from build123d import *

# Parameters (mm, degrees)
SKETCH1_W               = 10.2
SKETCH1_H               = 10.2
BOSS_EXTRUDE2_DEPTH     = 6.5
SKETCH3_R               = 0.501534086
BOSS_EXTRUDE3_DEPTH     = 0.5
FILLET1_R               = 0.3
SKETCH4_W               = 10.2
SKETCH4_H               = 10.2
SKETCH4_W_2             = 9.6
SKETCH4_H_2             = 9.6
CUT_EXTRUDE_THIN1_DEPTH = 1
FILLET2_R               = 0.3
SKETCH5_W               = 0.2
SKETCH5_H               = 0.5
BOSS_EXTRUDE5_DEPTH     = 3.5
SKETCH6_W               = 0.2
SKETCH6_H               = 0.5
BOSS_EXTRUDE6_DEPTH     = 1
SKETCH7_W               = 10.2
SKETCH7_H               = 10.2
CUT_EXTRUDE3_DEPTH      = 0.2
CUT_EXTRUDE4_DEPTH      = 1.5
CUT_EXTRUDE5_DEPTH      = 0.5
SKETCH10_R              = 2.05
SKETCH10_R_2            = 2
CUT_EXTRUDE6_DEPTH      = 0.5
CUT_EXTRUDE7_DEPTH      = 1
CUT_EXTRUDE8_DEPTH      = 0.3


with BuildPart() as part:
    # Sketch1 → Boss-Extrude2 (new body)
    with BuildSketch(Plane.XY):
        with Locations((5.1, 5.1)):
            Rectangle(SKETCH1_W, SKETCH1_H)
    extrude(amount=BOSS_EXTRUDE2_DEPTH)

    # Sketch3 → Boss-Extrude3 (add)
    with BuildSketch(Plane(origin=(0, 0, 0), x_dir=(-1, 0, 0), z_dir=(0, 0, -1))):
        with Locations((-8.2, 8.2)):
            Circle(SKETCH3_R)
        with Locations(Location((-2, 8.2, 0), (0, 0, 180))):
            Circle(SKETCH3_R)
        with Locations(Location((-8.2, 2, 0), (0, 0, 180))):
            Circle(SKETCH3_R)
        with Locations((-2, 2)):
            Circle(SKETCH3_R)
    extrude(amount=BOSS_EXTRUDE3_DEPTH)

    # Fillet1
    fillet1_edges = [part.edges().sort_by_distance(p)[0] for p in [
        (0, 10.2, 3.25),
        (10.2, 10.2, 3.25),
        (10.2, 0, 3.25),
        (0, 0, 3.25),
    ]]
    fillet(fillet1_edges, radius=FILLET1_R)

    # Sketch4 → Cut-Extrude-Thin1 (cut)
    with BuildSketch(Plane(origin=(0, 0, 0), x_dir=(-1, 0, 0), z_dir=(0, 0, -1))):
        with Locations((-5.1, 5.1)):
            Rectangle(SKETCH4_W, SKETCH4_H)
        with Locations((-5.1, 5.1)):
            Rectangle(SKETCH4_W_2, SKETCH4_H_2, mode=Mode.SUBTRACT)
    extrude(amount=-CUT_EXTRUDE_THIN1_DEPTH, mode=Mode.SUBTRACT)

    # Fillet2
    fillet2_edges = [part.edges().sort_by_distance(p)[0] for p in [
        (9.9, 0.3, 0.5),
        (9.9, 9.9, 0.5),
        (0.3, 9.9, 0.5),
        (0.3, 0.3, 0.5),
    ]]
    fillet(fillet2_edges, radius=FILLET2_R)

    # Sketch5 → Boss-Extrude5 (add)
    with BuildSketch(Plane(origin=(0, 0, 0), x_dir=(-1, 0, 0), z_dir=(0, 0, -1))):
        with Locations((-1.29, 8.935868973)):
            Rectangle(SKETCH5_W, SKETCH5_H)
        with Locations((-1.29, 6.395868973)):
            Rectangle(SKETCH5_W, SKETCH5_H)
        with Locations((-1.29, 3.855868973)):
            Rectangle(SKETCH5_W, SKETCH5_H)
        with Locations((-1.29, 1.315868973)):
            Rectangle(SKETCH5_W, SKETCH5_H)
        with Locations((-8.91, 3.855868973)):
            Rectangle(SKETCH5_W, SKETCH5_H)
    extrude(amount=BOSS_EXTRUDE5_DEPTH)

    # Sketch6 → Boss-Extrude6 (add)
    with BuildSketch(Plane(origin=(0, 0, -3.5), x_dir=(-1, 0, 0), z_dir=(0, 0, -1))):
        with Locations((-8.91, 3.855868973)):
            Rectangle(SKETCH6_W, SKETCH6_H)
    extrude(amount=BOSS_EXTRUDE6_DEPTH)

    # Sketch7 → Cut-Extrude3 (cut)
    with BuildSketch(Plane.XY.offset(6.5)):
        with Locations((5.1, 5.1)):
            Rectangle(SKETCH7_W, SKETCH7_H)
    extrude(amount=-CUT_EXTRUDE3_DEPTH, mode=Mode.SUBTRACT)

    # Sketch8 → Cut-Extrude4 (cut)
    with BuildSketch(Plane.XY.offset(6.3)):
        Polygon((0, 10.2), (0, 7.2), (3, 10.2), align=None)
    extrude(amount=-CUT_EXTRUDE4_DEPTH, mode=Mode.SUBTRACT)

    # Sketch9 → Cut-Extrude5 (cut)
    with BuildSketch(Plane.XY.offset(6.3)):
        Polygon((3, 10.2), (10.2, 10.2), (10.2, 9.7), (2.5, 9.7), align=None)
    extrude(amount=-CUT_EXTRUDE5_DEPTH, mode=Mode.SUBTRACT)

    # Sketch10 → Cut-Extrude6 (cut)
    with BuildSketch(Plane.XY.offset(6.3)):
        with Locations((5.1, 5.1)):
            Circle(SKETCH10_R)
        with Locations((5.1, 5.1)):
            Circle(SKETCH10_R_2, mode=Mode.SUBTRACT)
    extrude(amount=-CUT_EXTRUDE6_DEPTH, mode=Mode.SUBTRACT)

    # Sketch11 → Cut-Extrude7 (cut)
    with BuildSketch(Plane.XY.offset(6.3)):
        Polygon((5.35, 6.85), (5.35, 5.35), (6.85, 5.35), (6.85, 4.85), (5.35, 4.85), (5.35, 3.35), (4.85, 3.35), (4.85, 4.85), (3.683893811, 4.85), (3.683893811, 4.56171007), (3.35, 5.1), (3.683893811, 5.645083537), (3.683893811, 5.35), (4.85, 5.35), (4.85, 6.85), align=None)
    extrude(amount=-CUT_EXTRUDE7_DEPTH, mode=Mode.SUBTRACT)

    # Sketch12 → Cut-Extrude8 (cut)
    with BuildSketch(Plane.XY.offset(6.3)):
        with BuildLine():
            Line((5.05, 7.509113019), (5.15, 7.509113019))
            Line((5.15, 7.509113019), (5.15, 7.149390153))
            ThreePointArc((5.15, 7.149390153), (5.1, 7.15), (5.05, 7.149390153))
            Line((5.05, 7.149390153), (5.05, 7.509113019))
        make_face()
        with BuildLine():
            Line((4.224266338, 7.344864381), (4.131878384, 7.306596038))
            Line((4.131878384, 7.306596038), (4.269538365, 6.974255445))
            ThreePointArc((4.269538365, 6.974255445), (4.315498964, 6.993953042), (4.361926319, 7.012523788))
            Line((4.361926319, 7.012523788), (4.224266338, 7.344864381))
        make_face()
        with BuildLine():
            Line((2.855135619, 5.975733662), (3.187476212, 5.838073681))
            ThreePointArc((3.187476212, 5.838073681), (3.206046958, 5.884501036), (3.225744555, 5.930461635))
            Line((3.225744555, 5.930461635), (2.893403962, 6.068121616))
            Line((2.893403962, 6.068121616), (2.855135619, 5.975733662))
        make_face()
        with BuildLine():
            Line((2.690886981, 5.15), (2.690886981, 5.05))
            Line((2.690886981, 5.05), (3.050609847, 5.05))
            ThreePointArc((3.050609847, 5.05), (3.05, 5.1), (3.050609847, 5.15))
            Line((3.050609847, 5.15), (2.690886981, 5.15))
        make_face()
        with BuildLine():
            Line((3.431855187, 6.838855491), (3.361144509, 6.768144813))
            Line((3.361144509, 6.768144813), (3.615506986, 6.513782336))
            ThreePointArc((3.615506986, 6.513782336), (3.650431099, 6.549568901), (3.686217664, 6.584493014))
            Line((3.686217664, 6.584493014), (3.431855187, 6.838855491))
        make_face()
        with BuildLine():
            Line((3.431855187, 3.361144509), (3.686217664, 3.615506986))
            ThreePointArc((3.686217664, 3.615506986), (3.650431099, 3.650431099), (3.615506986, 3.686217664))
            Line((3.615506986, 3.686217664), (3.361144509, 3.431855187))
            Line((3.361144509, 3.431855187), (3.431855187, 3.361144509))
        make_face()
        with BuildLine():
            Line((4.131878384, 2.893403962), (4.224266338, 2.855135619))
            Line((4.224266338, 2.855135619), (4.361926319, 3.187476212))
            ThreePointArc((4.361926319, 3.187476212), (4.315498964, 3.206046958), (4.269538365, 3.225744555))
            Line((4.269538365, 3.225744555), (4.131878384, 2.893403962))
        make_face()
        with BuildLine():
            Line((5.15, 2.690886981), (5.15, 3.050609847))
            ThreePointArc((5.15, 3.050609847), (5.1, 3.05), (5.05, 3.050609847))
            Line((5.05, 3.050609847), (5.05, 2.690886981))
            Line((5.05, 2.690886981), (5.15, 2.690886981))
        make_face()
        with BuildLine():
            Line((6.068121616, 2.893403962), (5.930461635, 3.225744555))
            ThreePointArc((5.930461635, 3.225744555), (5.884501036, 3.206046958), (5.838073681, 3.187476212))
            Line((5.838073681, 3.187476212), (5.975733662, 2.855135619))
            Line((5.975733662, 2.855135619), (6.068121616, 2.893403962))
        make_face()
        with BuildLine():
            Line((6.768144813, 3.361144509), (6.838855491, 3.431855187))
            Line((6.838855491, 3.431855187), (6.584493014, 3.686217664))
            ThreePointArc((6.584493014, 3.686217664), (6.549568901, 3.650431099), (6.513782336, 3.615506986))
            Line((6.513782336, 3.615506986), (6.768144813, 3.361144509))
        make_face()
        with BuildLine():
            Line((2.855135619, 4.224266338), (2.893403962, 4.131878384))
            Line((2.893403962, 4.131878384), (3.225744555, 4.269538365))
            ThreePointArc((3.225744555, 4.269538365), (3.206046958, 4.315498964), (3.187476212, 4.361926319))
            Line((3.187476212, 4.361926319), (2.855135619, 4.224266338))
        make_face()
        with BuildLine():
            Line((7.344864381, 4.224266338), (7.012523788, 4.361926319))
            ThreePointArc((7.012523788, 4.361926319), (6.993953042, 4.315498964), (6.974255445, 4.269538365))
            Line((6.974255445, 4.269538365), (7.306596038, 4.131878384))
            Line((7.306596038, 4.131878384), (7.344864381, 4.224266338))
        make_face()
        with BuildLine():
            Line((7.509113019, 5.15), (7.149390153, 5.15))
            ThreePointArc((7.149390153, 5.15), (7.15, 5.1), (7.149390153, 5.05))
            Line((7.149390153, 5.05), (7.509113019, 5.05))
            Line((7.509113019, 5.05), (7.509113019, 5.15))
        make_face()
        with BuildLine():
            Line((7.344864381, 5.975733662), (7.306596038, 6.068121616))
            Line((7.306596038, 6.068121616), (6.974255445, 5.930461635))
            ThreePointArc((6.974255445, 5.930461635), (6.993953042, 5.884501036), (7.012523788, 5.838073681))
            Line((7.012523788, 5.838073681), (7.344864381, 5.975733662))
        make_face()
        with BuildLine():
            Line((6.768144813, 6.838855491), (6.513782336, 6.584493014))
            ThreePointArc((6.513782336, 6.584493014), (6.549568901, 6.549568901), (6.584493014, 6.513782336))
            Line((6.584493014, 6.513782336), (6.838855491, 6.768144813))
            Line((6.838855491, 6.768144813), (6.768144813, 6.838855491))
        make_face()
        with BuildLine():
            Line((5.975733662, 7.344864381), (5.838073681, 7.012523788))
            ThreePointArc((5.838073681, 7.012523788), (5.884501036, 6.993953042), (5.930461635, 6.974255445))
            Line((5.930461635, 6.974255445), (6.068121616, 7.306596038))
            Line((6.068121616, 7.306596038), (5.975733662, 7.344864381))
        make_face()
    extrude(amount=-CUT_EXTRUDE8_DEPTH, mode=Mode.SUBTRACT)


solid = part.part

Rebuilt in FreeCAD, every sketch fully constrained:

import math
import FreeCAD as App
import Part
import Sketcher
from FreeCAD import Vector
Q = App.Units.Quantity


def edges_at(feature, points):
    """Names of the edges that pass closest to the given points."""
    edges = feature.Shape.Edges
    near = lambda p: min(range(len(edges)), key=lambda i: edges[i].distToShape(Part.Vertex(*p))[0])
    return sorted({f"Edge{near(p) + 1}" for p in points})

doc = App.newDocument("Part")
body = doc.addObject("PartDesign::Body", "Body")

sketch1 = body.newObject("Sketcher::SketchObject", "Sketch")
sketch1.AttachmentSupport = (doc.getObject("XY_Plane"), [""])
sketch1.MapMode = "FlatFace"
sketch1.addGeometry([
    Part.LineSegment(Vector(0, 10, 0), Vector(0, 0, 0)),
    Part.LineSegment(Vector(0, 0, 0), Vector(10, 0, 0)),
    Part.LineSegment(Vector(10, 0, 0), Vector(10, 10, 0)),
    Part.LineSegment(Vector(10, 10, 0), Vector(0, 10, 0)),
], False)
sketch1.addConstraint([
    Sketcher.Constraint("Coincident", 0, 2, 1, 1),
    Sketcher.Constraint("Coincident", 1, 2, 2, 1),
    Sketcher.Constraint("Coincident", 2, 2, 3, 1),
    Sketcher.Constraint("Coincident", 3, 2, 0, 1),
    Sketcher.Constraint("Vertical", 0),
    Sketcher.Constraint("Horizontal", 1),
    Sketcher.Constraint("Vertical", 2),
    Sketcher.Constraint("Horizontal", 3),
    Sketcher.Constraint("Coincident", 0, 2, -1, 1),
    Sketcher.Constraint("Equal", 3, 0),
    Sketcher.Constraint("DistanceX", 1, 1, 1, 2, Q("10.2 mm")),
])
pad1 = body.newObject("PartDesign::Pad", "Pad")
pad1.Profile = sketch1
pad1.Length = 6.5

sketch2 = body.newObject("Sketcher::SketchObject", "Sketch001")
sketch2.AttachmentSupport = (doc.getObject("XY_Plane"), [""])
sketch2.MapMode = "FlatFace"
sketch2.addGeometry([
    Part.Circle(Vector(8.2, 8.2, 0), Vector(0, 0, 1), 0.5),
    Part.Circle(Vector(2, 8.2, 0), Vector(0, 0, 1), 0.5),
    Part.Circle(Vector(8.2, 2, 0), Vector(0, 0, 1), 0.5),
    Part.Circle(Vector(2, 2, 0), Vector(0, 0, 1), 0.5),
], False)
sketch2.addConstraint([
    Sketcher.Constraint("Equal", 0, 1),
    Sketcher.Constraint("Equal", 1, 2),
    Sketcher.Constraint("Equal", 2, 3),
    Sketcher.Constraint("Horizontal", 0, 3, 1, 3),
    Sketcher.Constraint("Horizontal", 2, 3, 3, 3),
    Sketcher.Constraint("Vertical", 0, 3, 2, 3),
    Sketcher.Constraint("Vertical", 1, 3, 3, 3),
    Sketcher.Constraint("DistanceX", -1, 1, 1, 3, Q("2 mm")),
    Sketcher.Constraint("DistanceY", -1, 1, 2, 3, Q("2 mm")),
    Sketcher.Constraint("DistanceX", -1, 1, 0, 3, Q("8.2 mm")),
    Sketcher.Constraint("DistanceY", -1, 1, 0, 3, Q("8.2 mm")),
    Sketcher.Constraint("Diameter", 0, Q("1.003068 mm")),
])
pad2 = body.newObject("PartDesign::Pad", "Pad001")
pad2.Profile = sketch2
pad2.Length = 0.5
pad2.Reversed = True
doc.recompute()

fillet = body.newObject("PartDesign::Fillet", "Fillet")
fillet.Base = (pad2, edges_at(pad2, [
    (0, 10.2, 3.25),
    (10.2, 10.2, 3.25),
    (10.2, 0, 3.25),
    (0, 0, 3.25),
]))
fillet.Radius = 0.3

sketch3 = body.newObject("Sketcher::SketchObject", "Sketch002")
sketch3.AttachmentSupport = (doc.getObject("XY_Plane"), [""])
sketch3.MapMode = "FlatFace"
sketch3.addGeometry([
    Part.LineSegment(Vector(10, 10, 0), Vector(10, 0, 0)),
    Part.LineSegment(Vector(10, 0, 0), Vector(0, 0, 0)),
    Part.LineSegment(Vector(0, 0, 0), Vector(0, 10, 0)),
    Part.LineSegment(Vector(0, 10, 0), Vector(10, 10, 0)),
    Part.LineSegment(Vector(0, 0, 0), Vector(10, 0, 0)),
    Part.LineSegment(Vector(10, 0, 0), Vector(10, 10, 0)),
    Part.LineSegment(Vector(10, 10, 0), Vector(0, 10, 0)),
    Part.LineSegment(Vector(0, 10, 0), Vector(0, 0, 0)),
], False)
sketch3.addConstraint([
    Sketcher.Constraint("Coincident", 0, 2, 1, 1),
    Sketcher.Constraint("Coincident", 1, 2, 2, 1),
    Sketcher.Constraint("Coincident", 2, 2, 3, 1),
    Sketcher.Constraint("Coincident", 3, 2, 0, 1),
    Sketcher.Constraint("Coincident", 4, 2, 5, 1),
    Sketcher.Constraint("Coincident", 5, 2, 6, 1),
    Sketcher.Constraint("Coincident", 6, 2, 7, 1),
    Sketcher.Constraint("Coincident", 7, 2, 4, 1),
    Sketcher.Constraint("Vertical", 0),
    Sketcher.Constraint("Horizontal", 1),
    Sketcher.Constraint("Vertical", 2),
    Sketcher.Constraint("Horizontal", 3),
    Sketcher.Constraint("Horizontal", 4),
    Sketcher.Constraint("Vertical", 5),
    Sketcher.Constraint("Horizontal", 6),
    Sketcher.Constraint("Vertical", 7),
    Sketcher.Constraint("Coincident", 1, 2, -1, 1),
    Sketcher.Constraint("Equal", 3, 0),
    Sketcher.Constraint("Equal", 6, 5),
    Sketcher.Constraint("DistanceX", 1, 2, 1, 1, Q("10.2 mm")),
    Sketcher.Constraint("DistanceX", 4, 1, 4, 2, Q("9.6 mm")),
    Sketcher.Constraint("DistanceX", -1, 1, 4, 2, Q("9.9 mm")),
    Sketcher.Constraint("DistanceY", -1, 1, 4, 2, Q("0.3 mm")),
])
pocket1 = body.newObject("PartDesign::Pocket", "Pocket")
pocket1.Profile = sketch3
pocket1.Length = 1
pocket1.Reversed = True
doc.recompute()

fillet2 = body.newObject("PartDesign::Fillet", "Fillet001")
fillet2.Base = (pocket1, edges_at(pocket1, [
    (9.9, 0.3, 0.5),
    (9.9, 9.9, 0.5),
    (0.3, 9.9, 0.5),
    (0.3, 0.3, 0.5),
]))
fillet2.Radius = 0.3

sketch4 = body.newObject("Sketcher::SketchObject", "Sketch003")
sketch4.AttachmentSupport = (doc.getObject("XY_Plane"), [""])
sketch4.MapMode = "FlatFace"
sketch4.addGeometry([
    Part.LineSegment(Vector(1.39, 9.19, 0), Vector(1.39, 8.69, 0)),
    Part.LineSegment(Vector(1.39, 8.69, 0), Vector(1.19, 8.69, 0)),
    Part.LineSegment(Vector(1.19, 8.69, 0), Vector(1.19, 9.19, 0)),
    Part.LineSegment(Vector(1.19, 9.19, 0), Vector(1.39, 9.19, 0)),
    Part.LineSegment(Vector(1.39, 6.65, 0), Vector(1.39, 6.15, 0)),
    Part.LineSegment(Vector(1.39, 6.15, 0), Vector(1.19, 6.15, 0)),
    Part.LineSegment(Vector(1.19, 6.15, 0), Vector(1.19, 6.65, 0)),
    Part.LineSegment(Vector(1.19, 6.65, 0), Vector(1.39, 6.65, 0)),
    Part.LineSegment(Vector(1.39, 4.11, 0), Vector(1.39, 3.61, 0)),
    Part.LineSegment(Vector(1.39, 3.61, 0), Vector(1.19, 3.61, 0)),
    Part.LineSegment(Vector(1.19, 3.61, 0), Vector(1.19, 4.11, 0)),
    Part.LineSegment(Vector(1.19, 4.11, 0), Vector(1.39, 4.11, 0)),
    Part.LineSegment(Vector(1.39, 1.57, 0), Vector(1.39, 1.07, 0)),
    Part.LineSegment(Vector(1.39, 1.07, 0), Vector(1.19, 1.07, 0)),
    Part.LineSegment(Vector(1.19, 1.07, 0), Vector(1.19, 1.57, 0)),
    Part.LineSegment(Vector(1.19, 1.57, 0), Vector(1.39, 1.57, 0)),
    Part.LineSegment(Vector(9.01, 4.11, 0), Vector(9.01, 3.61, 0)),
    Part.LineSegment(Vector(9.01, 3.61, 0), Vector(8.81, 3.61, 0)),
    Part.LineSegment(Vector(8.81, 3.61, 0), Vector(8.81, 4.11, 0)),
    Part.LineSegment(Vector(8.81, 4.11, 0), Vector(9.01, 4.11, 0)),
], False)
sketch4.addConstraint([
    Sketcher.Constraint("Coincident", 0, 2, 1, 1),
    Sketcher.Constraint("Coincident", 1, 2, 2, 1),
    Sketcher.Constraint("Coincident", 2, 2, 3, 1),
    Sketcher.Constraint("Coincident", 3, 2, 0, 1),
    Sketcher.Constraint("Coincident", 4, 2, 5, 1),
    Sketcher.Constraint("Coincident", 5, 2, 6, 1),
    Sketcher.Constraint("Coincident", 6, 2, 7, 1),
    Sketcher.Constraint("Coincident", 7, 2, 4, 1),
    Sketcher.Constraint("Coincident", 8, 2, 9, 1),
    Sketcher.Constraint("Coincident", 9, 2, 10, 1),
    Sketcher.Constraint("Coincident", 10, 2, 11, 1),
    Sketcher.Constraint("Coincident", 11, 2, 8, 1),
    Sketcher.Constraint("Coincident", 12, 2, 13, 1),
    Sketcher.Constraint("Coincident", 13, 2, 14, 1),
    Sketcher.Constraint("Coincident", 14, 2, 15, 1),
    Sketcher.Constraint("Coincident", 15, 2, 12, 1),
    Sketcher.Constraint("Coincident", 16, 2, 17, 1),
    Sketcher.Constraint("Coincident", 17, 2, 18, 1),
    Sketcher.Constraint("Coincident", 18, 2, 19, 1),
    Sketcher.Constraint("Coincident", 19, 2, 16, 1),
    Sketcher.Constraint("Vertical", 0),
    Sketcher.Constraint("Horizontal", 1),
    Sketcher.Constraint("Vertical", 2),
    Sketcher.Constraint("Horizontal", 3),
    Sketcher.Constraint("Vertical", 4),
    Sketcher.Constraint("Horizontal", 5),
    Sketcher.Constraint("Vertical", 6),
    Sketcher.Constraint("Horizontal", 7),
    Sketcher.Constraint("Vertical", 8),
    Sketcher.Constraint("Horizontal", 9),
    Sketcher.Constraint("Vertical", 10),
    Sketcher.Constraint("Horizontal", 11),
    Sketcher.Constraint("Vertical", 12),
    Sketcher.Constraint("Horizontal", 13),
    Sketcher.Constraint("Vertical", 14),
    Sketcher.Constraint("Horizontal", 15),
    Sketcher.Constraint("Vertical", 16),
    Sketcher.Constraint("Horizontal", 17),
    Sketcher.Constraint("Vertical", 18),
    Sketcher.Constraint("Horizontal", 19),
    Sketcher.Constraint("Horizontal", 9, 2, 16, 2),
    Sketcher.Constraint("Horizontal", 11, 2, 18, 2),
    Sketcher.Constraint("Vertical", 3, 2, 4, 2),
    Sketcher.Constraint("Vertical", 2, 2, 5, 2),
    Sketcher.Constraint("Vertical", 7, 2, 8, 2),
    Sketcher.Constraint("Vertical", 6, 2, 9, 2),
    Sketcher.Constraint("Vertical", 11, 2, 12, 2),
    Sketcher.Constraint("Vertical", 10, 2, 13, 2),
    Sketcher.Constraint("Equal", 15, 17),
    Sketcher.Constraint("Equal", 2, 4),
    Sketcher.Constraint("Equal", 6, 8),
    Sketcher.Constraint("Equal", 10, 12),
    Sketcher.Constraint("DistanceX", 1, 2, 1, 1, Q("0.2 mm")),
    Sketcher.Constraint("DistanceY", 0, 2, 0, 1, Q("0.5 mm")),
    Sketcher.Constraint("DistanceX", -1, 1, 0, 2, Q("1.39 mm")),
    Sketcher.Constraint("DistanceX", -1, 1, 16, 2, Q("9.01 mm")),
    Sketcher.Constraint("DistanceY", 4, 2, 0, 2, Q("2.54 mm")),
    Sketcher.Constraint("DistanceY", 8, 2, 4, 2, Q("2.54 mm")),
    Sketcher.Constraint("DistanceY", 12, 2, 8, 2, Q("2.54 mm")),
    Sketcher.Constraint("DistanceY", -1, 1, 0, 2, Q("8.685869 mm")),
])
pad3 = body.newObject("PartDesign::Pad", "Pad002")
pad3.Profile = sketch4
pad3.Length = 3.5
pad3.Reversed = True

sketch5 = body.newObject("Sketcher::SketchObject", "Sketch004")
sketch5.AttachmentSupport = (doc.getObject("XY_Plane"), [""])
sketch5.MapMode = "FlatFace"
sketch5.AttachmentOffset = App.Placement(Vector(0, 0, -3.5), App.Rotation())
sketch5.addGeometry([
    Part.LineSegment(Vector(9.01, 4.11, 0), Vector(9.01, 3.61, 0)),
    Part.LineSegment(Vector(9.01, 3.61, 0), Vector(8.81, 3.61, 0)),
    Part.LineSegment(Vector(8.81, 3.61, 0), Vector(8.81, 4.11, 0)),
    Part.LineSegment(Vector(8.81, 4.11, 0), Vector(9.01, 4.11, 0)),
], False)
sketch5.addConstraint([
    Sketcher.Constraint("Coincident", 0, 2, 1, 1),
    Sketcher.Constraint("Coincident", 1, 2, 2, 1),
    Sketcher.Constraint("Coincident", 2, 2, 3, 1),
    Sketcher.Constraint("Coincident", 3, 2, 0, 1),
    Sketcher.Constraint("Vertical", 0),
    Sketcher.Constraint("Horizontal", 1),
    Sketcher.Constraint("Vertical", 2),
    Sketcher.Constraint("Horizontal", 3),
    Sketcher.Constraint("DistanceX", 1, 2, 1, 1, Q("0.2 mm")),
    Sketcher.Constraint("DistanceY", 0, 2, 0, 1, Q("0.5 mm")),
    Sketcher.Constraint("DistanceX", -1, 1, 0, 2, Q("9.01 mm")),
    Sketcher.Constraint("DistanceY", -1, 1, 0, 2, Q("3.605869 mm")),
])
pad4 = body.newObject("PartDesign::Pad", "Pad003")
pad4.Profile = sketch5
pad4.Length = 1
pad4.Reversed = True

sketch6 = body.newObject("Sketcher::SketchObject", "Sketch005")
sketch6.AttachmentSupport = (doc.getObject("XY_Plane"), [""])
sketch6.MapMode = "FlatFace"
sketch6.AttachmentOffset = App.Placement(Vector(0, 0, 6.5), App.Rotation())
sketch6.addGeometry([
    Part.LineSegment(Vector(0, 10, 0), Vector(0, 0, 0)),
    Part.LineSegment(Vector(0, 0, 0), Vector(10, 0, 0)),
    Part.LineSegment(Vector(10, 0, 0), Vector(10, 10, 0)),
    Part.LineSegment(Vector(10, 10, 0), Vector(0, 10, 0)),
], False)
sketch6.addConstraint([
    Sketcher.Constraint("Coincident", 0, 2, 1, 1),
    Sketcher.Constraint("Coincident", 1, 2, 2, 1),
    Sketcher.Constraint("Coincident", 2, 2, 3, 1),
    Sketcher.Constraint("Coincident", 3, 2, 0, 1),
    Sketcher.Constraint("Vertical", 0),
    Sketcher.Constraint("Horizontal", 1),
    Sketcher.Constraint("Vertical", 2),
    Sketcher.Constraint("Horizontal", 3),
    Sketcher.Constraint("Coincident", 0, 2, -1, 1),
    Sketcher.Constraint("Equal", 3, 0),
    Sketcher.Constraint("DistanceX", 1, 1, 1, 2, Q("10.2 mm")),
])
pocket2 = body.newObject("PartDesign::Pocket", "Pocket001")
pocket2.Profile = sketch6
pocket2.Length = 0.2

sketch7 = body.newObject("Sketcher::SketchObject", "Sketch006")
sketch7.AttachmentSupport = (doc.getObject("XY_Plane"), [""])
sketch7.MapMode = "FlatFace"
sketch7.AttachmentOffset = App.Placement(Vector(0, 0, 6.3), App.Rotation())
sketch7.addGeometry([
    Part.LineSegment(Vector(0, 10.2, 0), Vector(0, 7.2, 0)),
    Part.LineSegment(Vector(0, 7.2, 0), Vector(3, 10.2, 0)),
    Part.LineSegment(Vector(3, 10.2, 0), Vector(0, 10.2, 0)),
], False)
sketch7.addConstraint([
    Sketcher.Constraint("Coincident", 0, 2, 1, 1),
    Sketcher.Constraint("Coincident", 1, 2, 2, 1),
    Sketcher.Constraint("Coincident", 2, 2, 0, 1),
    Sketcher.Constraint("Vertical", 0),
    Sketcher.Constraint("Horizontal", 2),
    Sketcher.Constraint("PointOnObject", 0, 2, -2),
    Sketcher.Constraint("Equal", 2, 0),
    Sketcher.Constraint("DistanceX", 2, 2, 2, 1, Q("3 mm")),
    Sketcher.Constraint("DistanceY", -1, 1, 0, 2, Q("7.2 mm")),
])
pocket3 = body.newObject("PartDesign::Pocket", "Pocket002")
pocket3.Profile = sketch7
pocket3.Length = 1.5

sketch8 = body.newObject("Sketcher::SketchObject", "Sketch007")
sketch8.AttachmentSupport = (doc.getObject("XY_Plane"), [""])
sketch8.MapMode = "FlatFace"
sketch8.AttachmentOffset = App.Placement(Vector(0, 0, 6.3), App.Rotation())
sketch8.addGeometry([
    Part.LineSegment(Vector(10.2, 10.2, 0), Vector(3, 10.2, 0)),
    Part.LineSegment(Vector(3, 10.2, 0), Vector(2.5, 9.7, 0)),
    Part.LineSegment(Vector(2.5, 9.7, 0), Vector(10.2, 9.7, 0)),
    Part.LineSegment(Vector(10.2, 9.7, 0), Vector(10.2, 10.2, 0)),
], False)
sketch8.addConstraint([
    Sketcher.Constraint("Coincident", 0, 2, 1, 1),
    Sketcher.Constraint("Coincident", 1, 2, 2, 1),
    Sketcher.Constraint("Coincident", 2, 2, 3, 1),
    Sketcher.Constraint("Coincident", 3, 2, 0, 1),
    Sketcher.Constraint("Horizontal", 0),
    Sketcher.Constraint("Horizontal", 2),
    Sketcher.Constraint("Vertical", 3),
    Sketcher.Constraint("Angle", 1, Q("-135 deg")),
    Sketcher.Constraint("DistanceX", 0, 2, 0, 1, Q("7.2 mm")),
    Sketcher.Constraint("DistanceX", 2, 1, 2, 2, Q("7.7 mm")),
    Sketcher.Constraint("DistanceX", -1, 1, 0, 2, Q("3 mm")),
    Sketcher.Constraint("DistanceY", -1, 1, 0, 2, Q("10.2 mm")),
])
pocket4 = body.newObject("PartDesign::Pocket", "Pocket003")
pocket4.Profile = sketch8
pocket4.Length = 0.5

sketch9 = body.newObject("Sketcher::SketchObject", "Sketch008")
sketch9.AttachmentSupport = (doc.getObject("XY_Plane"), [""])
sketch9.MapMode = "FlatFace"
sketch9.AttachmentOffset = App.Placement(Vector(0, 0, 6.3), App.Rotation())
sketch9.addGeometry([
    Part.Circle(Vector(5.1, 5.1, 0), Vector(0, 0, 1), 2),
    Part.Circle(Vector(5.1, 5.1, 0), Vector(0, 0, 1), 2),
], False)
sketch9.addConstraint([
    Sketcher.Constraint("Coincident", 1, 3, 0, 3),
    Sketcher.Constraint("Diameter", 1, Q("4 mm")),
    Sketcher.Constraint("Diameter", 0, Q("4.1 mm")),
    Sketcher.Constraint("DistanceX", -1, 1, 0, 3, Q("5.1 mm")),
    Sketcher.Constraint("DistanceY", -1, 1, 0, 3, Q("5.1 mm")),
])
pocket5 = body.newObject("PartDesign::Pocket", "Pocket004")
pocket5.Profile = sketch9
pocket5.Length = 0.5

sketch10 = body.newObject("Sketcher::SketchObject", "Sketch009")
sketch10.AttachmentSupport = (doc.getObject("XY_Plane"), [""])
sketch10.MapMode = "FlatFace"
sketch10.AttachmentOffset = App.Placement(Vector(0, 0, 6.3), App.Rotation())
sketch10.addGeometry([
    Part.LineSegment(Vector(5.35, 5.35, 0), Vector(5.35, 6.85, 0)),
    Part.LineSegment(Vector(5.35, 6.85, 0), Vector(4.85, 6.85, 0)),
    Part.LineSegment(Vector(4.85, 6.85, 0), Vector(4.85, 5.35, 0)),
    Part.LineSegment(Vector(4.85, 5.35, 0), Vector(3.68, 5.35, 0)),
    Part.LineSegment(Vector(3.68, 5.35, 0), Vector(3.68, 5.65, 0)),
    Part.LineSegment(Vector(3.68, 5.65, 0), Vector(3.35, 5.1, 0)),
    Part.LineSegment(Vector(3.35, 5.1, 0), Vector(3.68, 4.56, 0)),
    Part.LineSegment(Vector(3.68, 4.56, 0), Vector(3.68, 4.85, 0)),
    Part.LineSegment(Vector(3.68, 4.85, 0), Vector(4.85, 4.85, 0)),
    Part.LineSegment(Vector(4.85, 4.85, 0), Vector(4.85, 3.35, 0)),
    Part.LineSegment(Vector(4.85, 3.35, 0), Vector(5.35, 3.35, 0)),
    Part.LineSegment(Vector(5.35, 3.35, 0), Vector(5.35, 4.85, 0)),
    Part.LineSegment(Vector(5.35, 4.85, 0), Vector(6.85, 4.85, 0)),
    Part.LineSegment(Vector(6.85, 4.85, 0), Vector(6.85, 5.35, 0)),
    Part.LineSegment(Vector(6.85, 5.35, 0), Vector(5.35, 5.35, 0)),
], False)
sketch10.addConstraint([
    Sketcher.Constraint("Coincident", 0, 2, 1, 1),
    Sketcher.Constraint("Coincident", 1, 2, 2, 1),
    Sketcher.Constraint("Coincident", 2, 2, 3, 1),
    Sketcher.Constraint("Coincident", 3, 2, 4, 1),
    Sketcher.Constraint("Coincident", 4, 2, 5, 1),
    Sketcher.Constraint("Coincident", 5, 2, 6, 1),
    Sketcher.Constraint("Coincident", 6, 2, 7, 1),
    Sketcher.Constraint("Coincident", 7, 2, 8, 1),
    Sketcher.Constraint("Coincident", 8, 2, 9, 1),
    Sketcher.Constraint("Coincident", 9, 2, 10, 1),
    Sketcher.Constraint("Coincident", 10, 2, 11, 1),
    Sketcher.Constraint("Coincident", 11, 2, 12, 1),
    Sketcher.Constraint("Coincident", 12, 2, 13, 1),
    Sketcher.Constraint("Coincident", 13, 2, 14, 1),
    Sketcher.Constraint("Coincident", 14, 2, 0, 1),
    Sketcher.Constraint("Vertical", 0),
    Sketcher.Constraint("Horizontal", 1),
    Sketcher.Constraint("Vertical", 2),
    Sketcher.Constraint("Horizontal", 3),
    Sketcher.Constraint("Vertical", 4),
    Sketcher.Constraint("Vertical", 7),
    Sketcher.Constraint("Horizontal", 8),
    Sketcher.Constraint("Vertical", 9),
    Sketcher.Constraint("Horizontal", 10),
    Sketcher.Constraint("Vertical", 11),
    Sketcher.Constraint("Horizontal", 12),
    Sketcher.Constraint("Vertical", 13),
    Sketcher.Constraint("Horizontal", 14),
    Sketcher.Constraint("Horizontal", 8, 2, 11, 2),
    Sketcher.Constraint("Horizontal", 3, 2, 13, 2),
    Sketcher.Constraint("Vertical", 4, 2, 6, 2),
    Sketcher.Constraint("Vertical", 2, 2, 8, 2),
    Sketcher.Constraint("Vertical", 0, 2, 10, 2),
    Sketcher.Constraint("Equal", 14, 0),
    Sketcher.Constraint("Equal", 2, 9),
    Sketcher.Constraint("Equal", 10, 13),
    Sketcher.Constraint("DistanceX", 1, 2, 1, 1, Q("0.5 mm")),
    Sketcher.Constraint("DistanceX", 12, 1, 12, 2, Q("1.5 mm")),
    Sketcher.Constraint("DistanceX", 5, 2, 0, 2, Q("2 mm")),
    Sketcher.Constraint("DistanceY", -1, 1, 5, 2, Q("5.1 mm")),
    Sketcher.Constraint("DistanceX", -1, 1, 0, 2, Q("5.35 mm")),
    Sketcher.Constraint("DistanceY", -1, 1, 0, 2, Q("6.85 mm")),
    Sketcher.Constraint("DistanceY", 7, 1, 7, 2, Q("0.28829 mm")),
    Sketcher.Constraint("Distance", 5, Q("0.639219 mm")),
    Sketcher.Constraint("DistanceX", 3, 2, 3, 1, Q("1.166106 mm")),
])
pocket6 = body.newObject("PartDesign::Pocket", "Pocket005")
pocket6.Profile = sketch10
pocket6.Length = 1

sketch11 = body.newObject("Sketcher::SketchObject", "Sketch010")
sketch11.AttachmentSupport = (doc.getObject("XY_Plane"), [""])
sketch11.MapMode = "FlatFace"
sketch11.AttachmentOffset = App.Placement(Vector(0, 0, 6.3), App.Rotation())
sketch11.addGeometry([
    Part.LineSegment(Vector(5.15, 7.51, 0), Vector(5.05, 7.51, 0)),
    Part.LineSegment(Vector(5.05, 7.51, 0), Vector(5.05, 7.15, 0)),
    Part.ArcOfCircle(Part.Circle(Vector(5.1, 5.1, 0), Vector(0, 0, 1), 2.05), math.radians(88.6), math.radians(91.4)),
    Part.LineSegment(Vector(5.15, 7.15, 0), Vector(5.15, 7.51, 0)),
    Part.LineSegment(Vector(4.22, 7.34, 0), Vector(4.13, 7.31, 0)),
    Part.LineSegment(Vector(4.13, 7.31, 0), Vector(4.27, 6.97, 0)),
    Part.ArcOfCircle(Part.Circle(Vector(5.1, 5.1, 0), Vector(0, 0, 1), 2.05), math.radians(111.1), math.radians(113.9)),
    Part.LineSegment(Vector(4.36, 7.01, 0), Vector(4.22, 7.34, 0)),
    Part.LineSegment(Vector(2.86, 5.98, 0), Vector(3.19, 5.84, 0)),
    Part.ArcOfCircle(Part.Circle(Vector(5.1, 5.1, 0), Vector(0, 0, 1), 2.05), math.radians(156.1), math.radians(158.9)),
    Part.LineSegment(Vector(3.23, 5.93, 0), Vector(2.89, 6.07, 0)),
    Part.LineSegment(Vector(2.89, 6.07, 0), Vector(2.86, 5.98, 0)),
    Part.LineSegment(Vector(2.69, 5.15, 0), Vector(2.69, 5.05, 0)),
    Part.LineSegment(Vector(2.69, 5.05, 0), Vector(3.05, 5.05, 0)),
    Part.ArcOfCircle(Part.Circle(Vector(5.1, 5.1, 0), Vector(0, 0, 1), 2.05), math.radians(178.6), math.radians(181.4)),
    Part.LineSegment(Vector(3.05, 5.15, 0), Vector(2.69, 5.15, 0)),
    Part.LineSegment(Vector(3.43, 6.84, 0), Vector(3.36, 6.77, 0)),
    Part.LineSegment(Vector(3.36, 6.77, 0), Vector(3.62, 6.51, 0)),
    Part.ArcOfCircle(Part.Circle(Vector(5.1, 5.1, 0), Vector(0, 0, 1), 2.05), math.radians(133.6), math.radians(136.4)),
    Part.LineSegment(Vector(3.69, 6.58, 0), Vector(3.43, 6.84, 0)),
    Part.LineSegment(Vector(3.43, 3.36, 0), Vector(3.69, 3.62, 0)),
    Part.ArcOfCircle(Part.Circle(Vector(5.1, 5.1, 0), Vector(0, 0, 1), 2.05), math.radians(-136.4), math.radians(-133.6)),
    Part.LineSegment(Vector(3.62, 3.69, 0), Vector(3.36, 3.43, 0)),
    Part.LineSegment(Vector(3.36, 3.43, 0), Vector(3.43, 3.36, 0)),
    Part.LineSegment(Vector(4.13, 2.89, 0), Vector(4.22, 2.86, 0)),
    Part.LineSegment(Vector(4.22, 2.86, 0), Vector(4.36, 3.19, 0)),
    Part.ArcOfCircle(Part.Circle(Vector(5.1, 5.1, 0), Vector(0, 0, 1), 2.05), math.radians(-113.9), math.radians(-111.1)),
    Part.LineSegment(Vector(4.27, 3.23, 0), Vector(4.13, 2.89, 0)),
    Part.LineSegment(Vector(5.15, 2.69, 0), Vector(5.15, 3.05, 0)),
    Part.ArcOfCircle(Part.Circle(Vector(5.1, 5.1, 0), Vector(0, 0, 1), 2.05), math.radians(-91.4), math.radians(-88.6)),
    Part.LineSegment(Vector(5.05, 3.05, 0), Vector(5.05, 2.69, 0)),
    Part.LineSegment(Vector(5.05, 2.69, 0), Vector(5.15, 2.69, 0)),
    Part.LineSegment(Vector(6.07, 2.89, 0), Vector(5.93, 3.23, 0)),
    Part.ArcOfCircle(Part.Circle(Vector(5.1, 5.1, 0), Vector(0, 0, 1), 2.05), math.radians(-68.9), math.radians(-66.1)),
    Part.LineSegment(Vector(5.84, 3.19, 0), Vector(5.98, 2.86, 0)),
    Part.LineSegment(Vector(5.98, 2.86, 0), Vector(6.07, 2.89, 0)),
    Part.LineSegment(Vector(6.77, 3.36, 0), Vector(6.84, 3.43, 0)),
    Part.LineSegment(Vector(6.84, 3.43, 0), Vector(6.58, 3.69, 0)),
    Part.ArcOfCircle(Part.Circle(Vector(5.1, 5.1, 0), Vector(0, 0, 1), 2.05), math.radians(-46.4), math.radians(-43.6)),
    Part.LineSegment(Vector(6.51, 3.62, 0), Vector(6.77, 3.36, 0)),
    Part.LineSegment(Vector(2.86, 4.22, 0), Vector(2.89, 4.13, 0)),
    Part.LineSegment(Vector(2.89, 4.13, 0), Vector(3.23, 4.27, 0)),
    Part.ArcOfCircle(Part.Circle(Vector(5.1, 5.1, 0), Vector(0, 0, 1), 2.05), math.radians(-158.9), math.radians(-156.1)),
    Part.LineSegment(Vector(3.19, 4.36, 0), Vector(2.86, 4.22, 0)),
    Part.LineSegment(Vector(7.34, 4.22, 0), Vector(7.01, 4.36, 0)),
    Part.ArcOfCircle(Part.Circle(Vector(5.1, 5.1, 0), Vector(0, 0, 1), 2.05), math.radians(-23.9), math.radians(-21.1)),
    Part.LineSegment(Vector(6.97, 4.27, 0), Vector(7.31, 4.13, 0)),
    Part.LineSegment(Vector(7.31, 4.13, 0), Vector(7.34, 4.22, 0)),
    Part.LineSegment(Vector(7.51, 5.15, 0), Vector(7.15, 5.15, 0)),
    Part.ArcOfCircle(Part.Circle(Vector(5.1, 5.1, 0), Vector(0, 0, 1), 2.05), math.radians(-1.4), math.radians(1.4)),
    Part.LineSegment(Vector(7.15, 5.05, 0), Vector(7.51, 5.05, 0)),
    Part.LineSegment(Vector(7.51, 5.05, 0), Vector(7.51, 5.15, 0)),
    Part.LineSegment(Vector(7.34, 5.98, 0), Vector(7.31, 6.07, 0)),
    Part.LineSegment(Vector(7.31, 6.07, 0), Vector(6.97, 5.93, 0)),
    Part.ArcOfCircle(Part.Circle(Vector(5.1, 5.1, 0), Vector(0, 0, 1), 2.05), math.radians(21.1), math.radians(23.9)),
    Part.LineSegment(Vector(7.01, 5.84, 0), Vector(7.34, 5.98, 0)),
    Part.LineSegment(Vector(6.77, 6.84, 0), Vector(6.51, 6.58, 0)),
    Part.ArcOfCircle(Part.Circle(Vector(5.1, 5.1, 0), Vector(0, 0, 1), 2.05), math.radians(43.6), math.radians(46.4)),
    Part.LineSegment(Vector(6.58, 6.51, 0), Vector(6.84, 6.77, 0)),
    Part.LineSegment(Vector(6.84, 6.77, 0), Vector(6.77, 6.84, 0)),
    Part.LineSegment(Vector(5.98, 7.34, 0), Vector(5.84, 7.01, 0)),
    Part.ArcOfCircle(Part.Circle(Vector(5.1, 5.1, 0), Vector(0, 0, 1), 2.05), math.radians(66.1), math.radians(68.9)),
    Part.LineSegment(Vector(5.93, 6.97, 0), Vector(6.07, 7.31, 0)),
    Part.LineSegment(Vector(6.07, 7.31, 0), Vector(5.98, 7.34, 0)),
], False)
sketch11.addConstraint([
    Sketcher.Constraint("Coincident", 0, 2, 1, 1),
    Sketcher.Constraint("Coincident", 1, 2, 2, 2),
    Sketcher.Constraint("Coincident", 2, 1, 3, 1),
    Sketcher.Constraint("Coincident", 3, 2, 0, 1),
    Sketcher.Constraint("Coincident", 4, 2, 5, 1),
    Sketcher.Constraint("Coincident", 5, 2, 6, 2),
    Sketcher.Constraint("Coincident", 6, 1, 7, 1),
    Sketcher.Constraint("Coincident", 7, 2, 4, 1),
    Sketcher.Constraint("Coincident", 8, 2, 9, 2),
    Sketcher.Constraint("Coincident", 9, 1, 10, 1),
    Sketcher.Constraint("Coincident", 10, 2, 11, 1),
    Sketcher.Constraint("Coincident", 11, 2, 8, 1),
    Sketcher.Constraint("Coincident", 12, 2, 13, 1),
    Sketcher.Constraint("Coincident", 13, 2, 14, 2),
    Sketcher.Constraint("Coincident", 14, 1, 15, 1),
    Sketcher.Constraint("Coincident", 15, 2, 12, 1),
    Sketcher.Constraint("Coincident", 16, 2, 17, 1),
    Sketcher.Constraint("Coincident", 17, 2, 18, 2),
    Sketcher.Constraint("Coincident", 18, 1, 19, 1),
    Sketcher.Constraint("Coincident", 19, 2, 16, 1),
    Sketcher.Constraint("Coincident", 20, 2, 21, 2),
    Sketcher.Constraint("Coincident", 21, 1, 22, 1),
    Sketcher.Constraint("Coincident", 22, 2, 23, 1),
    Sketcher.Constraint("Coincident", 23, 2, 20, 1),
    Sketcher.Constraint("Coincident", 24, 2, 25, 1),
    Sketcher.Constraint("Coincident", 25, 2, 26, 2),
    Sketcher.Constraint("Coincident", 26, 1, 27, 1),
    Sketcher.Constraint("Coincident", 27, 2, 24, 1),
    Sketcher.Constraint("Coincident", 28, 2, 29, 2),
    Sketcher.Constraint("Coincident", 29, 1, 30, 1),
    Sketcher.Constraint("Coincident", 30, 2, 31, 1),
    Sketcher.Constraint("Coincident", 31, 2, 28, 1),
    Sketcher.Constraint("Coincident", 32, 2, 33, 2),
    Sketcher.Constraint("Coincident", 33, 1, 34, 1),
    Sketcher.Constraint("Coincident", 34, 2, 35, 1),
    Sketcher.Constraint("Coincident", 35, 2, 32, 1),
    Sketcher.Constraint("Coincident", 36, 2, 37, 1),
    Sketcher.Constraint("Coincident", 37, 2, 38, 2),
    Sketcher.Constraint("Coincident", 38, 1, 39, 1),
    Sketcher.Constraint("Coincident", 39, 2, 36, 1),
    Sketcher.Constraint("Coincident", 40, 2, 41, 1),
    Sketcher.Constraint("Coincident", 41, 2, 42, 2),
    Sketcher.Constraint("Coincident", 42, 1, 43, 1),
    Sketcher.Constraint("Coincident", 43, 2, 40, 1),
    Sketcher.Constraint("Coincident", 44, 2, 45, 2),
    Sketcher.Constraint("Coincident", 45, 1, 46, 1),
    Sketcher.Constraint("Coincident", 46, 2, 47, 1),
    Sketcher.Constraint("Coincident", 47, 2, 44, 1),
    Sketcher.Constraint("Coincident", 48, 2, 49, 2),
    Sketcher.Constraint("Coincident", 49, 1, 50, 1),
    Sketcher.Constraint("Coincident", 50, 2, 51, 1),
    Sketcher.Constraint("Coincident", 51, 2, 48, 1),
    Sketcher.Constraint("Coincident", 52, 2, 53, 1),
    Sketcher.Constraint("Coincident", 53, 2, 54, 2),
    Sketcher.Constraint("Coincident", 54, 1, 55, 1),
    Sketcher.Constraint("Coincident", 55, 2, 52, 1),
    Sketcher.Constraint("Coincident", 56, 2, 57, 2),
    Sketcher.Constraint("Coincident", 57, 1, 58, 1),
    Sketcher.Constraint("Coincident", 58, 2, 59, 1),
    Sketcher.Constraint("Coincident", 59, 2, 56, 1),
    Sketcher.Constraint("Coincident", 60, 2, 61, 2),
    Sketcher.Constraint("Coincident", 61, 1, 62, 1),
    Sketcher.Constraint("Coincident", 62, 2, 63, 1),
    Sketcher.Constraint("Coincident", 63, 2, 60, 1),
    Sketcher.Constraint("Horizontal", 0),
    Sketcher.Constraint("Vertical", 1),
    Sketcher.Constraint("Vertical", 3),
    Sketcher.Constraint("Vertical", 12),
    Sketcher.Constraint("Horizontal", 13),
    Sketcher.Constraint("Horizontal", 15),
    Sketcher.Constraint("Vertical", 28),
    Sketcher.Constraint("Vertical", 30),
    Sketcher.Constraint("Horizontal", 31),
    Sketcher.Constraint("Horizontal", 48),
    Sketcher.Constraint("Horizontal", 50),
    Sketcher.Constraint("Vertical", 51),
    Sketcher.Constraint("Coincident", 6, 3, 2, 3),
    Sketcher.Constraint("Coincident", 9, 3, 2, 3),
    Sketcher.Constraint("Coincident", 14, 3, 2, 3),
    Sketcher.Constraint("Coincident", 18, 3, 2, 3),
    Sketcher.Constraint("Coincident", 21, 3, 2, 3),
    Sketcher.Constraint("Coincident", 26, 3, 2, 3),
    Sketcher.Constraint("Coincident", 29, 3, 2, 3),
    Sketcher.Constraint("Coincident", 33, 3, 2, 3),
    Sketcher.Constraint("Coincident", 38, 3, 2, 3),
    Sketcher.Constraint("Coincident", 42, 3, 2, 3),
    Sketcher.Constraint("Coincident", 45, 3, 2, 3),
    Sketcher.Constraint("Coincident", 49, 3, 2, 3),
    Sketcher.Constraint("Coincident", 54, 3, 2, 3),
    Sketcher.Constraint("Coincident", 57, 3, 2, 3),
    Sketcher.Constraint("Coincident", 61, 3, 2, 3),
    Sketcher.Constraint("Equal", 2, 6),
    Sketcher.Constraint("Equal", 6, 9),
    Sketcher.Constraint("Equal", 9, 14),
    Sketcher.Constraint("Equal", 18, 21),
    Sketcher.Constraint("Equal", 14, 26),
    Sketcher.Constraint("Equal", 26, 29),
    Sketcher.Constraint("Equal", 29, 33),
    Sketcher.Constraint("Equal", 21, 38),
    Sketcher.Constraint("Equal", 33, 42),
    Sketcher.Constraint("Equal", 42, 45),
    Sketcher.Constraint("Equal", 45, 49),
    Sketcher.Constraint("Equal", 49, 54),
    Sketcher.Constraint("Equal", 38, 57),
    Sketcher.Constraint("Equal", 54, 61),
    Sketcher.Constraint("Perpendicular", 4, 5),
    Sketcher.Constraint("Parallel", 5, 7),
    Sketcher.Constraint("Parallel", 8, 10),
    Sketcher.Constraint("Perpendicular", 10, 11),
    Sketcher.Constraint("Perpendicular", 16, 17),
    Sketcher.Constraint("Parallel", 17, 19),
    Sketcher.Constraint("Perpendicular", 19, 20),
    Sketcher.Constraint("Parallel", 20, 22),
    Sketcher.Constraint("Perpendicular", 22, 23),
    Sketcher.Constraint("Perpendicular", 11, 24),
    Sketcher.Constraint("Perpendicular", 24, 25),
    Sketcher.Constraint("Parallel", 25, 27),
    Sketcher.Constraint("Parallel", 7, 32),
    Sketcher.Constraint("Parallel", 32, 34),
    Sketcher.Constraint("Perpendicular", 34, 35),
    Sketcher.Constraint("Perpendicular", 23, 36),
    Sketcher.Constraint("Perpendicular", 36, 37),
    Sketcher.Constraint("Parallel", 37, 39),
    Sketcher.Constraint("Perpendicular", 35, 40),
    Sketcher.Constraint("Perpendicular", 40, 41),
    Sketcher.Constraint("Parallel", 41, 43),
    Sketcher.Constraint("Perpendicular", 27, 44),
    Sketcher.Constraint("Parallel", 44, 46),
    Sketcher.Constraint("Perpendicular", 46, 47),
    Sketcher.Constraint("Perpendicular", 43, 52),
    Sketcher.Constraint("Perpendicular", 52, 53),
    Sketcher.Constraint("Parallel", 53, 55),
    Sketcher.Constraint("Perpendicular", 39, 56),
    Sketcher.Constraint("Parallel", 56, 58),
    Sketcher.Constraint("Perpendicular", 58, 59),
    Sketcher.Constraint("Parallel", 47, 60),
    Sketcher.Constraint("Parallel", 60, 62),
    Sketcher.Constraint("Perpendicular", 62, 63),
    Sketcher.Constraint("Horizontal", 1, 2, 2, 1),
    Sketcher.Constraint("Horizontal", 28, 2, 29, 1),
    Sketcher.Constraint("Horizontal", 26, 1, 32, 2),
    Sketcher.Constraint("Horizontal", 25, 2, 33, 1),
    Sketcher.Constraint("Horizontal", 24, 2, 34, 2),
    Sketcher.Constraint("Horizontal", 27, 2, 35, 2),
    Sketcher.Constraint("Horizontal", 22, 2, 36, 2),
    Sketcher.Constraint("Horizontal", 21, 1, 37, 2),
    Sketcher.Constraint("Horizontal", 20, 2, 38, 1),
    Sketcher.Constraint("Horizontal", 23, 2, 39, 2),
    Sketcher.Constraint("Horizontal", 42, 1, 44, 2),
    Sketcher.Constraint("Horizontal", 41, 2, 45, 1),
    Sketcher.Constraint("Horizontal", 40, 2, 46, 2),
    Sketcher.Constraint("Horizontal", 15, 2, 48, 2),
    Sketcher.Constraint("Horizontal", 13, 2, 49, 1),
    Sketcher.Constraint("Horizontal", 10, 2, 52, 2),
    Sketcher.Constraint("Horizontal", 9, 1, 53, 2),
    Sketcher.Constraint("Horizontal", 8, 2, 54, 1),
    Sketcher.Constraint("Horizontal", 18, 1, 56, 2),
    Sketcher.Constraint("Horizontal", 17, 2, 57, 1),
    Sketcher.Constraint("Horizontal", 16, 2, 58, 2),
    Sketcher.Constraint("Horizontal", 6, 1, 60, 2),
    Sketcher.Constraint("Horizontal", 5, 2, 61, 1),
    Sketcher.Constraint("Horizontal", 4, 2, 62, 2),
    Sketcher.Constraint("Vertical", 13, 2, 14, 1),
    Sketcher.Constraint("Vertical", 18, 1, 20, 2),
    Sketcher.Constraint("Vertical", 17, 2, 21, 1),
    Sketcher.Constraint("Vertical", 16, 2, 22, 2),
    Sketcher.Constraint("Vertical", 7, 2, 24, 2),
    Sketcher.Constraint("Vertical", 6, 1, 25, 2),
    Sketcher.Constraint("Vertical", 5, 2, 26, 1),
    Sketcher.Constraint("Vertical", 3, 2, 28, 2),
    Sketcher.Constraint("Vertical", 10, 2, 40, 2),
    Sketcher.Constraint("Vertical", 9, 1, 41, 2),
    Sketcher.Constraint("Vertical", 8, 2, 42, 1),
    Sketcher.Constraint("Equal", 15, 48),
    Sketcher.Constraint("Equal", 50, 1),
    Sketcher.Constraint("Equal", 31, 12),
    Sketcher.Constraint("Equal", 3, 28),
    Sketcher.Constraint("Equal", 5, 7),
    Sketcher.Constraint("Equal", 7, 8),
    Sketcher.Constraint("Equal", 8, 10),
    Sketcher.Constraint("Equal", 4, 11),
    Sketcher.Constraint("Equal", 11, 16),
    Sketcher.Constraint("Equal", 10, 17),
    Sketcher.Constraint("Equal", 17, 19),
    Sketcher.Constraint("Radius", 2, Q("2.049999 mm")),
    Sketcher.Constraint("DistanceX", 0, 2, 0, 1, Q("0.1 mm")),
    Sketcher.Constraint("Angle", 4, Q("-157.5 deg")),
    Sketcher.Constraint("Distance", 4, Q("0.1 mm")),
    Sketcher.Constraint("DistanceX", -1, 1, 2, 3, Q("5.1 mm")),
    Sketcher.Constraint("DistanceY", -1, 1, 2, 3, Q("5.100001 mm")),
    Sketcher.Constraint("Radius", 18, Q("2.050004 mm")),
    Sketcher.Constraint("DistanceX", 13, 1, 13, 2, Q("0.359723 mm")),
    Sketcher.Constraint("DistanceX", -1, 1, 4, 2, Q("4.131878 mm")),
])
pocket7 = body.newObject("PartDesign::Pocket", "Pocket006")
pocket7.Profile = sketch11
pocket7.Length = 0.3

doc.recompute()
